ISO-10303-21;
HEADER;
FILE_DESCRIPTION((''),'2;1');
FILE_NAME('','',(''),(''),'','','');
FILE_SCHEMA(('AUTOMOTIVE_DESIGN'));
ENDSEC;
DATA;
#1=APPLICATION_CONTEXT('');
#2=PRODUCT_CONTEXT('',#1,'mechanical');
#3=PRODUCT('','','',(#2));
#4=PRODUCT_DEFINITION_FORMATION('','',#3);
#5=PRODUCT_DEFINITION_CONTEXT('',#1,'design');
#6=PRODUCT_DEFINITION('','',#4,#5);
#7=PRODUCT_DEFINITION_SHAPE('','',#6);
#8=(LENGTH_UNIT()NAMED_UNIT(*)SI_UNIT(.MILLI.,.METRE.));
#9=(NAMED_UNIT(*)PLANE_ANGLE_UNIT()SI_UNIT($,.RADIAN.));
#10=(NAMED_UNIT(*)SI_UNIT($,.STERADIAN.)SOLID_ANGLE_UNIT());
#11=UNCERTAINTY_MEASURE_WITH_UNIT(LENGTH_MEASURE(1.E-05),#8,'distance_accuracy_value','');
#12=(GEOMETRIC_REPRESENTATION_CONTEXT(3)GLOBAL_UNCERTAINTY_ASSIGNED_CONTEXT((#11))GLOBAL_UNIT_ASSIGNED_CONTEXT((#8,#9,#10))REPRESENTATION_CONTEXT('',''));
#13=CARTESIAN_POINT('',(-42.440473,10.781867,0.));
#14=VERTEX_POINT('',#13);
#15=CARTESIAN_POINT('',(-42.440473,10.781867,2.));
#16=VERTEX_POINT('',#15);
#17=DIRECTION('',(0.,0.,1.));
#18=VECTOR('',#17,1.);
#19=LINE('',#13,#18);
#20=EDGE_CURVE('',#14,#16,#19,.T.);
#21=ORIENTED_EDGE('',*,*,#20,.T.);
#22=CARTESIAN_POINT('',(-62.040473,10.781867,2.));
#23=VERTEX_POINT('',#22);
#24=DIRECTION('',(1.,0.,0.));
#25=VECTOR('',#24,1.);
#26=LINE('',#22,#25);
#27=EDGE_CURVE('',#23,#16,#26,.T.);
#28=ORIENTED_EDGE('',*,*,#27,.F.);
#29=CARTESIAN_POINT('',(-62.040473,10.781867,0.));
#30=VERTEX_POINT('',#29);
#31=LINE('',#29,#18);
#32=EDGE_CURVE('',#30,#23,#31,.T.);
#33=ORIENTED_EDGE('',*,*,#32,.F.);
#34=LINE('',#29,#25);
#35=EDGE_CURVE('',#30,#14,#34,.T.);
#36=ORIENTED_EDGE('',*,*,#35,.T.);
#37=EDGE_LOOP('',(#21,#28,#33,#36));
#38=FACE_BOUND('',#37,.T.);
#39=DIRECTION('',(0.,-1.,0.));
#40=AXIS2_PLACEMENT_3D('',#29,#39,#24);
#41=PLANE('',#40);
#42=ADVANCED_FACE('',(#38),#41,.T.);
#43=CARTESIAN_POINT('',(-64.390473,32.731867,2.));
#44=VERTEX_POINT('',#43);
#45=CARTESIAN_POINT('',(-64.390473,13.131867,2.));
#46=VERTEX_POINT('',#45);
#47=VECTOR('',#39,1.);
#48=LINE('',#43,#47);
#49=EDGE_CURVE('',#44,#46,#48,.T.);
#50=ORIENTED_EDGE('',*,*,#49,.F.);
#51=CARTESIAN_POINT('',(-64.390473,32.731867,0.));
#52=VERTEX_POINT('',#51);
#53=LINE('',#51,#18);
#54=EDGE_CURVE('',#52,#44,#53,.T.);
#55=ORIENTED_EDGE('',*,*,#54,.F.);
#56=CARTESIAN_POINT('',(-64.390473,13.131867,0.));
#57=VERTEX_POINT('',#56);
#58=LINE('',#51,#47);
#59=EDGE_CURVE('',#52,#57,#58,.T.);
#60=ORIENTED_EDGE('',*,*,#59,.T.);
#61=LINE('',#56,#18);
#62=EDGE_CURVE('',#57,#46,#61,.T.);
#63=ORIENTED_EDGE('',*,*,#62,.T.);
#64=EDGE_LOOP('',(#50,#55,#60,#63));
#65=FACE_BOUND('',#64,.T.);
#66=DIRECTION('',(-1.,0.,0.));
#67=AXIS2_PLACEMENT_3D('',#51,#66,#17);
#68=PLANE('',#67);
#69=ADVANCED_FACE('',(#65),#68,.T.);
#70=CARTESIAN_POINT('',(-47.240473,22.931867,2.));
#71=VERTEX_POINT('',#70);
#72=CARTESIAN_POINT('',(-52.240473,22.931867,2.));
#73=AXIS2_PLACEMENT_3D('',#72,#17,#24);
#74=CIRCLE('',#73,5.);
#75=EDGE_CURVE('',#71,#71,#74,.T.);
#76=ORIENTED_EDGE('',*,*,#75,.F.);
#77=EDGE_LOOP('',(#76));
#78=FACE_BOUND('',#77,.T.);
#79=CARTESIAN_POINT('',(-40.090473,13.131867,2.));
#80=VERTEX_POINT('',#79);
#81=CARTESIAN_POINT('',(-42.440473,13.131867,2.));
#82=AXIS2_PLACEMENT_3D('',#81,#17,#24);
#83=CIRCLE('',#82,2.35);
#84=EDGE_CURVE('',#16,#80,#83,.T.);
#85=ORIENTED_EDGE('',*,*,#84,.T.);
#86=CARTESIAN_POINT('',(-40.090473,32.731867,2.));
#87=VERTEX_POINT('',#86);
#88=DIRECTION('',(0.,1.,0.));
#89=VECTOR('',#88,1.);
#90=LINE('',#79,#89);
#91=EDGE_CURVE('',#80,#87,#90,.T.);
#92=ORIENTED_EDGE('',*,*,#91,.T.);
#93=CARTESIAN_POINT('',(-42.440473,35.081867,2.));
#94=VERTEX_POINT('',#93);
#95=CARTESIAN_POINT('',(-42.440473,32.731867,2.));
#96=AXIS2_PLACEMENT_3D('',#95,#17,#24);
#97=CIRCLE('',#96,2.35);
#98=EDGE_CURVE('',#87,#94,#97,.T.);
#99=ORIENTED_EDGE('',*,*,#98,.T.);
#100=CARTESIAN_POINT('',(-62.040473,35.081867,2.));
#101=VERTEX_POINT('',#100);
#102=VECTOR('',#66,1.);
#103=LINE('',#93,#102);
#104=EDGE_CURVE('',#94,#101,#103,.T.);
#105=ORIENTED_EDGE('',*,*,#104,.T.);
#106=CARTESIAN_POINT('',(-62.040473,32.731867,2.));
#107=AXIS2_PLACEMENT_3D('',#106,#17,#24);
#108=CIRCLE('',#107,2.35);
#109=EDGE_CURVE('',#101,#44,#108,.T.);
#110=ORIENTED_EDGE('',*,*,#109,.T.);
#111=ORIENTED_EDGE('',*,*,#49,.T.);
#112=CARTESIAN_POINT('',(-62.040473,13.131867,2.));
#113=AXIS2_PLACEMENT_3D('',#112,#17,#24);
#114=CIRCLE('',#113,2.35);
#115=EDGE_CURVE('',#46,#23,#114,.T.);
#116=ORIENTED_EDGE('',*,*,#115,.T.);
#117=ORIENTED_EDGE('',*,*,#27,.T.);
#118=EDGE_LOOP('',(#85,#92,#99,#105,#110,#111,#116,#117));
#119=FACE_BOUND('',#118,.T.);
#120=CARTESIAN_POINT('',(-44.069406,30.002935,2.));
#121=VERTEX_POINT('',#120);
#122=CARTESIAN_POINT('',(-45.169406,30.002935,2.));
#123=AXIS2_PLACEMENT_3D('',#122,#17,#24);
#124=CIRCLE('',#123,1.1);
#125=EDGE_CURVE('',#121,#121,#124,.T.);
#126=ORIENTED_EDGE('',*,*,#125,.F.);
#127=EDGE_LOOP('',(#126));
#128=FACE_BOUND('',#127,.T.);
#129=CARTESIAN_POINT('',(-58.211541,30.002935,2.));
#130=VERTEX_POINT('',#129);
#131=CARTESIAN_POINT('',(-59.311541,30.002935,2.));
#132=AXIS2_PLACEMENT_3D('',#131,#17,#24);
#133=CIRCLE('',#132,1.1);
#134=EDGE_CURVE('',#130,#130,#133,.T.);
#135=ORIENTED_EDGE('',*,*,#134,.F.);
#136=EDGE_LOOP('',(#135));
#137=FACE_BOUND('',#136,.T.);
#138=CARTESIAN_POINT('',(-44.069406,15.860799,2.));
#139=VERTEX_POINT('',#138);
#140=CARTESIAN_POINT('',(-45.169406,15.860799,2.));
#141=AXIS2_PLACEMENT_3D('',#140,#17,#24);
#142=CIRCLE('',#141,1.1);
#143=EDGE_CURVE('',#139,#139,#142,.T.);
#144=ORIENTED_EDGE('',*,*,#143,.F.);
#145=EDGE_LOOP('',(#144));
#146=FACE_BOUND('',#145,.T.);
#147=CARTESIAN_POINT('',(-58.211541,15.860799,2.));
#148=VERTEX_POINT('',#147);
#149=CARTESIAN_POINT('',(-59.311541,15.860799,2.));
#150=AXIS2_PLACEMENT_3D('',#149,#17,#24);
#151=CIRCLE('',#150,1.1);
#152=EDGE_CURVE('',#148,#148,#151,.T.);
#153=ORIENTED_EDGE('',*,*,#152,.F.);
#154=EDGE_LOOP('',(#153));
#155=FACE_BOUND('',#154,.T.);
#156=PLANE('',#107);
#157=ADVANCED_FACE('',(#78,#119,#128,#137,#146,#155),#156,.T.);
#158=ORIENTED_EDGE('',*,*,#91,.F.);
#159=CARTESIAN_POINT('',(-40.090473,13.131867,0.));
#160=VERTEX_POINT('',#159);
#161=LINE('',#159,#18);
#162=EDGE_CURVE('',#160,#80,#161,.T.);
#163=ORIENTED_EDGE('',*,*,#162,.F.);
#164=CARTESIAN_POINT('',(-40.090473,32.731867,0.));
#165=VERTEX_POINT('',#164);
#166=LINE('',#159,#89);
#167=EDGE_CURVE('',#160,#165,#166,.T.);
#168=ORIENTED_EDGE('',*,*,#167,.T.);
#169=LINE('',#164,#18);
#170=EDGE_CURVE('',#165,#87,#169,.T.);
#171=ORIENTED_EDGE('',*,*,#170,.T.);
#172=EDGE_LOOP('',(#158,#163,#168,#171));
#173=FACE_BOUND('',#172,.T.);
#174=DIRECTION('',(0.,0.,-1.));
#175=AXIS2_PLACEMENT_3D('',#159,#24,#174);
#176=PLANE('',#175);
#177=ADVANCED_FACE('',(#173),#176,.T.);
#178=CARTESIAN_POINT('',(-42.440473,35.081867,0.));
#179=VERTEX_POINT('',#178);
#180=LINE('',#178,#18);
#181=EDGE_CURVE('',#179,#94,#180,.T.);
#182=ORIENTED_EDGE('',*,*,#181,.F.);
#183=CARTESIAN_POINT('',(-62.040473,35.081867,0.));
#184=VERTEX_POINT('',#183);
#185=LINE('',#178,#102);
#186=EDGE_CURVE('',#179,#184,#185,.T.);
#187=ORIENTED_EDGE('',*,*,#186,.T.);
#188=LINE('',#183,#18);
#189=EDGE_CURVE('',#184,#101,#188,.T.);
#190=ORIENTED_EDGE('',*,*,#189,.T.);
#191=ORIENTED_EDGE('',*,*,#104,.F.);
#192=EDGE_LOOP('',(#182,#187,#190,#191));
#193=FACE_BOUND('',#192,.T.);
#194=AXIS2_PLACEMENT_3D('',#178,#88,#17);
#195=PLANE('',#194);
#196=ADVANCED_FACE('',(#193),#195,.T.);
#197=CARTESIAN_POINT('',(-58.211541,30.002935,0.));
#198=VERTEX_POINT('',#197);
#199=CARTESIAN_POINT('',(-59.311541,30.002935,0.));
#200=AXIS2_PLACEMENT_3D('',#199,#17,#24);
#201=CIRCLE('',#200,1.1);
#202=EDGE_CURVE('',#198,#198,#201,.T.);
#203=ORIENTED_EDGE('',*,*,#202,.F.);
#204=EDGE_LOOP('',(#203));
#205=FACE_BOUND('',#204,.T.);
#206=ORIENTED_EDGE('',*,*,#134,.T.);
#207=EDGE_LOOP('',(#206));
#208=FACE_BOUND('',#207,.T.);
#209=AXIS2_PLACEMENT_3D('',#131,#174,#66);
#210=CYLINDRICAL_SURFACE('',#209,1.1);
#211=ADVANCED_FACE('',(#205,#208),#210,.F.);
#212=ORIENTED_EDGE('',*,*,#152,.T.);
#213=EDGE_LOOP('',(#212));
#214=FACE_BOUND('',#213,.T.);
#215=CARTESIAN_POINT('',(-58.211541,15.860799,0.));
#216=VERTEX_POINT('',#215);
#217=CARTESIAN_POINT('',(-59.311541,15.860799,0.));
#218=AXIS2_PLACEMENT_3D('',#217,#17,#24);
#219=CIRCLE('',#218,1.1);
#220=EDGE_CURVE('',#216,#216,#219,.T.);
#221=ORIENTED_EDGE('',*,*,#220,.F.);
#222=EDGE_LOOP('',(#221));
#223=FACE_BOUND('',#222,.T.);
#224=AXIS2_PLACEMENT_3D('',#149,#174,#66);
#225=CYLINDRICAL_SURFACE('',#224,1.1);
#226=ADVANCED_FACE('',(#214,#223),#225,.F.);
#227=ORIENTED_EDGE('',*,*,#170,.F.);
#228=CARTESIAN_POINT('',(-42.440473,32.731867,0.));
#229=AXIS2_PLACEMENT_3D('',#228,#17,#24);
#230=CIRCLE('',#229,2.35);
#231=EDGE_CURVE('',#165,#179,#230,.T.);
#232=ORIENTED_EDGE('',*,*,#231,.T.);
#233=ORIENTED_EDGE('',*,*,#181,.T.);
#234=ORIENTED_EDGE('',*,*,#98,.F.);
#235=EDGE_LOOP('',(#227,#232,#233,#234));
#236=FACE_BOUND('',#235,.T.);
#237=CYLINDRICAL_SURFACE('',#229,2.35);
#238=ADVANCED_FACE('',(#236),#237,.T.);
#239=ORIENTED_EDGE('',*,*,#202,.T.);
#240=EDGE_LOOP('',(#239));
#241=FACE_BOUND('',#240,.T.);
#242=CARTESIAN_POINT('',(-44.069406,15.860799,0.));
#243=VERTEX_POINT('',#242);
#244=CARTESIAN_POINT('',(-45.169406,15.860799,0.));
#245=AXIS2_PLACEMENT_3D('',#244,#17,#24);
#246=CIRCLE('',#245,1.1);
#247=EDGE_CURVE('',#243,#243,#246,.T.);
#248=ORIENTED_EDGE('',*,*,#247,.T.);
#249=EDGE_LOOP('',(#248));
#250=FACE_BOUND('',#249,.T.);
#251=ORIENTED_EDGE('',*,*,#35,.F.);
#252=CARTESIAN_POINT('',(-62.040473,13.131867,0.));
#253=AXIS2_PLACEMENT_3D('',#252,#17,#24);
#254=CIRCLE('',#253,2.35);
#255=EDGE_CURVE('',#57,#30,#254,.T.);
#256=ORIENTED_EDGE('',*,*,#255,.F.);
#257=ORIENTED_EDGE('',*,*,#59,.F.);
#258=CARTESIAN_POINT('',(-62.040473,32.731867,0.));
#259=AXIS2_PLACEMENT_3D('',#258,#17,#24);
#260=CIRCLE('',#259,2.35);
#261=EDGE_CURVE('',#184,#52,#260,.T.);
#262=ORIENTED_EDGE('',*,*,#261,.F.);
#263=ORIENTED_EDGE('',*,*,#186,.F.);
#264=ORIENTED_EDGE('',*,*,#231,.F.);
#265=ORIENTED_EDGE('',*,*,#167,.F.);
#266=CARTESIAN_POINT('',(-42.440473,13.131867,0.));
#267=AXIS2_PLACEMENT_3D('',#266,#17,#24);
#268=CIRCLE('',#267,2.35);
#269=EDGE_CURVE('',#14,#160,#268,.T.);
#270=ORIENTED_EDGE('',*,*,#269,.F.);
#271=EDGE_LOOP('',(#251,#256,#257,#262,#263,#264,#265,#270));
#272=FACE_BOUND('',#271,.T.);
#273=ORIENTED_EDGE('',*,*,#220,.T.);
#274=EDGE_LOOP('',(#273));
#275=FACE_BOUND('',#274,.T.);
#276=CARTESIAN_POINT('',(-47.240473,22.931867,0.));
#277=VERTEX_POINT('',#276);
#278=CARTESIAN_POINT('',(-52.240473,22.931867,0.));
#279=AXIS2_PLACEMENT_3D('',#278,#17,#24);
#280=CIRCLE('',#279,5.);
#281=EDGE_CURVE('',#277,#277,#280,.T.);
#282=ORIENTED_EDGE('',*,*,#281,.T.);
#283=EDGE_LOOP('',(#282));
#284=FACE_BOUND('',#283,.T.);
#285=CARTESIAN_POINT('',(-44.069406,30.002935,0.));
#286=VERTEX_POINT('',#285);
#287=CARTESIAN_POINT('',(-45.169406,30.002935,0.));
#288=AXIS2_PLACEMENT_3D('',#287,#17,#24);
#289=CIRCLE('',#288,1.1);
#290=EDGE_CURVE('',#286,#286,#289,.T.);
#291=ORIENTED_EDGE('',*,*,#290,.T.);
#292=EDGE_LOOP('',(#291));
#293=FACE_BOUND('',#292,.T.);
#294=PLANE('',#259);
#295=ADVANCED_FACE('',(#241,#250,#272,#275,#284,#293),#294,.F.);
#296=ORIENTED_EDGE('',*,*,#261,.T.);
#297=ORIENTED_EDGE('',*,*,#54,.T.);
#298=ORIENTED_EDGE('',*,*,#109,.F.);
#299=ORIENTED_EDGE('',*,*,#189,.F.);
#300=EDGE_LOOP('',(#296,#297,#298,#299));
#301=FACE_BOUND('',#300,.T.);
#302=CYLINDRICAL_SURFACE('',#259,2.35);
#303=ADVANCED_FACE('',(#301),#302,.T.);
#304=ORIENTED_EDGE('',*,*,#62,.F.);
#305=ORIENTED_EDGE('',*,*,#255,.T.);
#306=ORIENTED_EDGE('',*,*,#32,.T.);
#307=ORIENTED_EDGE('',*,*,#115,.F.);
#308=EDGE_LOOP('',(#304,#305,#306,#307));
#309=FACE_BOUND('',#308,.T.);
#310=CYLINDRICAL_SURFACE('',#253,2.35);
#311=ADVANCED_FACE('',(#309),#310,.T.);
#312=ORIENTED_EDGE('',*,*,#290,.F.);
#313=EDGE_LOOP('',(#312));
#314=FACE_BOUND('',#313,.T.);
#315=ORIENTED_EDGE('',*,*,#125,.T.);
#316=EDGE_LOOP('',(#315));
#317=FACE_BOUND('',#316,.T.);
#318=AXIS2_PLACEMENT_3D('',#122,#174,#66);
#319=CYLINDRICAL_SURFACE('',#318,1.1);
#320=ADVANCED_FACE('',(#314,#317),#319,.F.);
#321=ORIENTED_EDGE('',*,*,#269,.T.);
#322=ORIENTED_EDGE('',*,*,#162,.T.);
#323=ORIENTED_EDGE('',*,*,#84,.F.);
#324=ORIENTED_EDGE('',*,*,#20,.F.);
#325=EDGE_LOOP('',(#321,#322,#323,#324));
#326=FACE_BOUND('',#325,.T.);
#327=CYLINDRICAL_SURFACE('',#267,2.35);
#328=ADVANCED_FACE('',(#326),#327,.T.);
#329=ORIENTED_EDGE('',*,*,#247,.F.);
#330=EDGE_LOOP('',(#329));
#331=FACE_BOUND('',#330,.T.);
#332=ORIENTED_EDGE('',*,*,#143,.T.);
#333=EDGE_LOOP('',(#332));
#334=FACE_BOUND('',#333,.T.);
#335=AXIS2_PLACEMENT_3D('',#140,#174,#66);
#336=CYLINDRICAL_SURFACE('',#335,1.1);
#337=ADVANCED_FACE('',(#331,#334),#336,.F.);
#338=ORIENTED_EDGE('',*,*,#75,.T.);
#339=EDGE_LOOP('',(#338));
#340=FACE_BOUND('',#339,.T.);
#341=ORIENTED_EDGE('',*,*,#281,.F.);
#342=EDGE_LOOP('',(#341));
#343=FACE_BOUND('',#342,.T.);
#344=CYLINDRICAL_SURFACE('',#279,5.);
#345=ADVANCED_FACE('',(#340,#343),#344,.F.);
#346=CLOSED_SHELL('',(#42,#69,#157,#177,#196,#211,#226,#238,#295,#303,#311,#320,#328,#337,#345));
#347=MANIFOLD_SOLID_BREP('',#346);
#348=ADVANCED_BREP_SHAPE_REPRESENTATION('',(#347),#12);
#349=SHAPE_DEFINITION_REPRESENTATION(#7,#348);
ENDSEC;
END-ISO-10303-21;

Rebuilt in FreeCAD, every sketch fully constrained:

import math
import FreeCAD as App
import Part
import Sketcher

V = App.Vector

doc = App.newDocument("Part")
body = doc.addObject("PartDesign::Body", "Body")

# Sketch on XY plane
sketch1 = body.newObject("Sketcher::SketchObject", "Sketch")
sketch1.AttachmentSupport = (doc.getObject("XY_Plane"), [""])
sketch1.MapMode = "FlatFace"
sketch1.addGeometry(Part.LineSegment(V(-64.7, 32.7, 0), V(-64.7, 13.1, 0)), False)
sketch1.addGeometry(Part.ArcOfCircle(Part.Circle(V(-62, 13.1, 0), V(0, 0, 1), 2.7), math.radians(180), math.radians(270)), False)
sketch1.addGeometry(Part.LineSegment(V(-62, 10.4, 0), V(-42.4, 10.4, 0)), False)
sketch1.addGeometry(Part.ArcOfCircle(Part.Circle(V(-42.4, 13.1, 0), V(0, 0, 1), 2.7), math.radians(-90), math.radians(0)), False)
sketch1.addGeometry(Part.LineSegment(V(-39.7, 13.1, 0), V(-39.7, 32.7, 0)), False)
sketch1.addGeometry(Part.ArcOfCircle(Part.Circle(V(-42.4, 32.7, 0), V(0, 0, 1), 2.7), math.radians(0), math.radians(90)), False)
sketch1.addGeometry(Part.LineSegment(V(-42.4, 35.4, 0), V(-62, 35.4, 0)), False)
sketch1.addGeometry(Part.ArcOfCircle(Part.Circle(V(-62, 32.7, 0), V(0, 0, 1), 2.7), math.radians(90), math.radians(180)), False)
sketch1.addGeometry(Part.Circle(V(-59.3, 15.9, 0), V(0, 0, 1), 1.1), False)
sketch1.addGeometry(Part.Circle(V(-45.2, 15.9, 0), V(0, 0, 1), 1.1), False)
sketch1.addGeometry(Part.Circle(V(-59.3, 30, 0), V(0, 0, 1), 1.1), False)
sketch1.addGeometry(Part.Circle(V(-52.2, 22.9, 0), V(0, 0, 1), 3), False)
sketch1.addGeometry(Part.Circle(V(-45.2, 30, 0), V(0, 0, 1), 1.1), False)
sketch1.addConstraint(Sketcher.Constraint("Tangent", 0, 2, 1, 1))
sketch1.addConstraint(Sketcher.Constraint("Tangent", 1, 2, 2, 1))
sketch1.addConstraint(Sketcher.Constraint("Tangent", 2, 2, 3, 1))
sketch1.addConstraint(Sketcher.Constraint("Tangent", 3, 2, 4, 1))
sketch1.addConstraint(Sketcher.Constraint("Tangent", 4, 2, 5, 1))
sketch1.addConstraint(Sketcher.Constraint("Tangent", 5, 2, 6, 1))
sketch1.addConstraint(Sketcher.Constraint("Tangent", 6, 2, 7, 1))
sketch1.addConstraint(Sketcher.Constraint("Tangent", 7, 2, 0, 1))
sketch1.addConstraint(Sketcher.Constraint("Vertical", 0))
sketch1.addConstraint(Sketcher.Constraint("Horizontal", 2))
sketch1.addConstraint(Sketcher.Constraint("Vertical", 4))
sketch1.addConstraint(Sketcher.Constraint("Horizontal", 6))
sketch1.addConstraint(Sketcher.Constraint("Equal", 1, 3))
sketch1.addConstraint(Sketcher.Constraint("Equal", 3, 5))
sketch1.addConstraint(Sketcher.Constraint("Equal", 5, 7))
sketch1.addConstraint(Sketcher.Constraint("Equal", 8, 9))
sketch1.addConstraint(Sketcher.Constraint("Equal", 9, 10))
sketch1.addConstraint(Sketcher.Constraint("Equal", 10, 12))
sketch1.addConstraint(Sketcher.Constraint("Horizontal", 8, 3, 9, 3))
sketch1.addConstraint(Sketcher.Constraint("Horizontal", 10, 3, 12, 3))
sketch1.addConstraint(Sketcher.Constraint("Vertical", 8, 3, 10, 3))
sketch1.addConstraint(Sketcher.Constraint("Vertical", 9, 3, 12, 3))
sketch1.addConstraint(Sketcher.Constraint("Equal", 6, 0))
sketch1.addConstraint(Sketcher.Constraint("Diameter", 11, 6.0))
sketch1.addConstraint(Sketcher.Constraint("Diameter", 8, 2.2))
sketch1.addConstraint(Sketcher.Constraint("Radius", 1, 2.7))
sketch1.addConstraint(Sketcher.Constraint("DistanceX", 2, 1, 2, 2, 19.6))
sketch1.addConstraint(Sketcher.Constraint("DistanceX", 11, 3, 5, 3, 9.8))
sketch1.addConstraint(Sketcher.Constraint("DistanceY", 11, 3, 5, 3, 9.8))
sketch1.addConstraint(Sketcher.Constraint("DistanceY", -1, 1, 8, 3, 15.860799))
sketch1.addConstraint(Sketcher.Constraint("DistanceX", 8, 3, -1, 1, 59.311541))
sketch1.addConstraint(Sketcher.Constraint("DistanceX", 1, 3, -1, 1, 62.040473))
sketch1.addConstraint(Sketcher.Constraint("DistanceY", -1, 1, 1, 3, 13.131867))
sketch1.addConstraint(Sketcher.Constraint("DistanceX", 9, 3, -1, 1, 45.169406))
sketch1.addConstraint(Sketcher.Constraint("DistanceY", -1, 1, 10, 3, 30.002935))
pad1 = body.newObject("PartDesign::Pad", "Pad")
pad1.Profile = sketch1
pad1.Length = 2

# Sketch on XY plane
sketch2 = body.newObject("Sketcher::SketchObject", "Sketch001")
sketch2.AttachmentSupport = (doc.getObject("XY_Plane"), [""])
sketch2.MapMode = "FlatFace"
sketch2.addGeometry(Part.LineSegment(V(-64.7, 32.7, 0), V(-64.7, 13.1, 0)), False)
sketch2.addGeometry(Part.ArcOfCircle(Part.Circle(V(-62, 13.1, 0), V(0, 0, 1), 2.7), math.radians(180), math.radians(270)), False)
sketch2.addGeometry(Part.LineSegment(V(-62, 10.4, 0), V(-42.4, 10.4, 0)), False)
sketch2.addGeometry(Part.ArcOfCircle(Part.Circle(V(-42.4, 13.1, 0), V(0, 0, 1), 2.7), math.radians(-90), math.radians(0)), False)
sketch2.addGeometry(Part.LineSegment(V(-39.7, 13.1, 0), V(-39.7, 32.7, 0)), False)
sketch2.addGeometry(Part.ArcOfCircle(Part.Circle(V(-42.4, 32.7, 0), V(0, 0, 1), 2.7), math.radians(0), math.radians(90)), False)
sketch2.addGeometry(Part.LineSegment(V(-42.4, 35.4, 0), V(-62, 35.4, 0)), False)
sketch2.addGeometry(Part.ArcOfCircle(Part.Circle(V(-62, 32.7, 0), V(0, 0, 1), 2.7), math.radians(90), math.radians(180)), False)
sketch2.addGeometry(Part.LineSegment(V(-64.4, 13.1, 0), V(-64.4, 32.7, 0)), False)
sketch2.addGeometry(Part.ArcOfCircle(Part.Circle(V(-62, 32.7, 0), V(0, 0, 1), 2.3), math.radians(90), math.radians(180)), False)
sketch2.addGeometry(Part.LineSegment(V(-62, 35.1, 0), V(-42.4, 35.1, 0)), False)
sketch2.addGeometry(Part.ArcOfCircle(Part.Circle(V(-42.4, 32.7, 0), V(0, 0, 1), 2.4), math.radians(0), math.radians(90)), False)
sketch2.addGeometry(Part.LineSegment(V(-40.1, 32.7, 0), V(-40.1, 13.1, 0)), False)
sketch2.addGeometry(Part.ArcOfCircle(Part.Circle(V(-42.4, 13.1, 0), V(0, 0, 1), 2.4), math.radians(-90), math.radians(0)), False)
sketch2.addGeometry(Part.LineSegment(V(-42.4, 10.8, 0), V(-62, 10.8, 0)), False)
sketch2.addGeometry(Part.ArcOfCircle(Part.Circle(V(-62, 13.1, 0), V(0, 0, 1), 2.3), math.radians(180), math.radians(270)), False)
sketch2.addConstraint(Sketcher.Constraint("Tangent", 0, 2, 1, 1))
sketch2.addConstraint(Sketcher.Constraint("Tangent", 1, 2, 2, 1))
sketch2.addConstraint(Sketcher.Constraint("Tangent", 2, 2, 3, 1))
sketch2.addConstraint(Sketcher.Constraint("Tangent", 3, 2, 4, 1))
sketch2.addConstraint(Sketcher.Constraint("Tangent", 4, 2, 5, 1))
sketch2.addConstraint(Sketcher.Constraint("Tangent", 5, 2, 6, 1))
sketch2.addConstraint(Sketcher.Constraint("Tangent", 6, 2, 7, 1))
sketch2.addConstraint(Sketcher.Constraint("Tangent", 7, 2, 0, 1))
sketch2.addConstraint(Sketcher.Constraint("Tangent", 8, 2, 9, 2))
sketch2.addConstraint(Sketcher.Constraint("Tangent", 9, 1, 10, 1))
sketch2.addConstraint(Sketcher.Constraint("Tangent", 10, 2, 11, 2))
sketch2.addConstraint(Sketcher.Constraint("Tangent", 11, 1, 12, 1))
sketch2.addConstraint(Sketcher.Constraint("Tangent", 12, 2, 13, 2))
sketch2.addConstraint(Sketcher.Constraint("Tangent", 13, 1, 14, 1))
sketch2.addConstraint(Sketcher.Constraint("Tangent", 14, 2, 15, 2))
sketch2.addConstraint(Sketcher.Constraint("Tangent", 15, 1, 8, 1))
sketch2.addConstraint(Sketcher.Constraint("Vertical", 0))
sketch2.addConstraint(Sketcher.Constraint("Horizontal", 2))
sketch2.addConstraint(Sketcher.Constraint("Vertical", 4))
sketch2.addConstraint(Sketcher.Constraint("Horizontal", 6))
sketch2.addConstraint(Sketcher.Constraint("Vertical", 8))
sketch2.addConstraint(Sketcher.Constraint("Horizontal", 10))
sketch2.addConstraint(Sketcher.Constraint("Vertical", 12))
sketch2.addConstraint(Sketcher.Constraint("Horizontal", 14))
sketch2.addConstraint(Sketcher.Constraint("Coincident", 9, 3, 7, 3))
sketch2.addConstraint(Sketcher.Constraint("Coincident", 11, 3, 5, 3))
sketch2.addConstraint(Sketcher.Constraint("Coincident", 13, 3, 3, 3))
sketch2.addConstraint(Sketcher.Constraint("Equal", 1, 3))
sketch2.addConstraint(Sketcher.Constraint("Equal", 3, 5))
sketch2.addConstraint(Sketcher.Constraint("Equal", 5, 7))
sketch2.addConstraint(Sketcher.Constraint("Equal", 13, 15))
sketch2.addConstraint(Sketcher.Constraint("Equal", 14, 0))
sketch2.addConstraint(Sketcher.Constraint("Radius", 1, 2.7))
sketch2.addConstraint(Sketcher.Constraint("Radius", 9, 2.35))
sketch2.addConstraint(Sketcher.Constraint("DistanceX", 2, 1, 2, 2, 19.6))
sketch2.addConstraint(Sketcher.Constraint("DistanceX", 1, 3, -1, 1, 62.040473))
sketch2.addConstraint(Sketcher.Constraint("DistanceY", -1, 1, 1, 3, 13.131867))
pocket1 = body.newObject("PartDesign::Pocket", "Pocket")
pocket1.Profile = sketch2
pocket1.Length = 2
pocket1.Reversed = True

# Sketch on XY plane
sketch3 = body.newObject("Sketcher::SketchObject", "Sketch002")
sketch3.AttachmentSupport = (doc.getObject("XY_Plane"), [""])
sketch3.MapMode = "FlatFace"
sketch3.AttachmentOffset = App.Placement(V(0, 0, 2), App.Rotation())
sketch3.addGeometry(Part.Circle(V(-52, 23, 0), V(0, 0, 1), 5), False)
sketch3.addConstraint(Sketcher.Constraint("Diameter", 0, 10.0))
sketch3.addConstraint(Sketcher.Constraint("DistanceX", 0, 3, -1, 1, 52.240473))
sketch3.addConstraint(Sketcher.Constraint("DistanceY", -1, 1, 0, 3, 22.931867))
pocket2 = body.newObject("PartDesign::Pocket", "Pocket001")
pocket2.Profile = sketch3
pocket2.Length = 2

doc.recompute()
